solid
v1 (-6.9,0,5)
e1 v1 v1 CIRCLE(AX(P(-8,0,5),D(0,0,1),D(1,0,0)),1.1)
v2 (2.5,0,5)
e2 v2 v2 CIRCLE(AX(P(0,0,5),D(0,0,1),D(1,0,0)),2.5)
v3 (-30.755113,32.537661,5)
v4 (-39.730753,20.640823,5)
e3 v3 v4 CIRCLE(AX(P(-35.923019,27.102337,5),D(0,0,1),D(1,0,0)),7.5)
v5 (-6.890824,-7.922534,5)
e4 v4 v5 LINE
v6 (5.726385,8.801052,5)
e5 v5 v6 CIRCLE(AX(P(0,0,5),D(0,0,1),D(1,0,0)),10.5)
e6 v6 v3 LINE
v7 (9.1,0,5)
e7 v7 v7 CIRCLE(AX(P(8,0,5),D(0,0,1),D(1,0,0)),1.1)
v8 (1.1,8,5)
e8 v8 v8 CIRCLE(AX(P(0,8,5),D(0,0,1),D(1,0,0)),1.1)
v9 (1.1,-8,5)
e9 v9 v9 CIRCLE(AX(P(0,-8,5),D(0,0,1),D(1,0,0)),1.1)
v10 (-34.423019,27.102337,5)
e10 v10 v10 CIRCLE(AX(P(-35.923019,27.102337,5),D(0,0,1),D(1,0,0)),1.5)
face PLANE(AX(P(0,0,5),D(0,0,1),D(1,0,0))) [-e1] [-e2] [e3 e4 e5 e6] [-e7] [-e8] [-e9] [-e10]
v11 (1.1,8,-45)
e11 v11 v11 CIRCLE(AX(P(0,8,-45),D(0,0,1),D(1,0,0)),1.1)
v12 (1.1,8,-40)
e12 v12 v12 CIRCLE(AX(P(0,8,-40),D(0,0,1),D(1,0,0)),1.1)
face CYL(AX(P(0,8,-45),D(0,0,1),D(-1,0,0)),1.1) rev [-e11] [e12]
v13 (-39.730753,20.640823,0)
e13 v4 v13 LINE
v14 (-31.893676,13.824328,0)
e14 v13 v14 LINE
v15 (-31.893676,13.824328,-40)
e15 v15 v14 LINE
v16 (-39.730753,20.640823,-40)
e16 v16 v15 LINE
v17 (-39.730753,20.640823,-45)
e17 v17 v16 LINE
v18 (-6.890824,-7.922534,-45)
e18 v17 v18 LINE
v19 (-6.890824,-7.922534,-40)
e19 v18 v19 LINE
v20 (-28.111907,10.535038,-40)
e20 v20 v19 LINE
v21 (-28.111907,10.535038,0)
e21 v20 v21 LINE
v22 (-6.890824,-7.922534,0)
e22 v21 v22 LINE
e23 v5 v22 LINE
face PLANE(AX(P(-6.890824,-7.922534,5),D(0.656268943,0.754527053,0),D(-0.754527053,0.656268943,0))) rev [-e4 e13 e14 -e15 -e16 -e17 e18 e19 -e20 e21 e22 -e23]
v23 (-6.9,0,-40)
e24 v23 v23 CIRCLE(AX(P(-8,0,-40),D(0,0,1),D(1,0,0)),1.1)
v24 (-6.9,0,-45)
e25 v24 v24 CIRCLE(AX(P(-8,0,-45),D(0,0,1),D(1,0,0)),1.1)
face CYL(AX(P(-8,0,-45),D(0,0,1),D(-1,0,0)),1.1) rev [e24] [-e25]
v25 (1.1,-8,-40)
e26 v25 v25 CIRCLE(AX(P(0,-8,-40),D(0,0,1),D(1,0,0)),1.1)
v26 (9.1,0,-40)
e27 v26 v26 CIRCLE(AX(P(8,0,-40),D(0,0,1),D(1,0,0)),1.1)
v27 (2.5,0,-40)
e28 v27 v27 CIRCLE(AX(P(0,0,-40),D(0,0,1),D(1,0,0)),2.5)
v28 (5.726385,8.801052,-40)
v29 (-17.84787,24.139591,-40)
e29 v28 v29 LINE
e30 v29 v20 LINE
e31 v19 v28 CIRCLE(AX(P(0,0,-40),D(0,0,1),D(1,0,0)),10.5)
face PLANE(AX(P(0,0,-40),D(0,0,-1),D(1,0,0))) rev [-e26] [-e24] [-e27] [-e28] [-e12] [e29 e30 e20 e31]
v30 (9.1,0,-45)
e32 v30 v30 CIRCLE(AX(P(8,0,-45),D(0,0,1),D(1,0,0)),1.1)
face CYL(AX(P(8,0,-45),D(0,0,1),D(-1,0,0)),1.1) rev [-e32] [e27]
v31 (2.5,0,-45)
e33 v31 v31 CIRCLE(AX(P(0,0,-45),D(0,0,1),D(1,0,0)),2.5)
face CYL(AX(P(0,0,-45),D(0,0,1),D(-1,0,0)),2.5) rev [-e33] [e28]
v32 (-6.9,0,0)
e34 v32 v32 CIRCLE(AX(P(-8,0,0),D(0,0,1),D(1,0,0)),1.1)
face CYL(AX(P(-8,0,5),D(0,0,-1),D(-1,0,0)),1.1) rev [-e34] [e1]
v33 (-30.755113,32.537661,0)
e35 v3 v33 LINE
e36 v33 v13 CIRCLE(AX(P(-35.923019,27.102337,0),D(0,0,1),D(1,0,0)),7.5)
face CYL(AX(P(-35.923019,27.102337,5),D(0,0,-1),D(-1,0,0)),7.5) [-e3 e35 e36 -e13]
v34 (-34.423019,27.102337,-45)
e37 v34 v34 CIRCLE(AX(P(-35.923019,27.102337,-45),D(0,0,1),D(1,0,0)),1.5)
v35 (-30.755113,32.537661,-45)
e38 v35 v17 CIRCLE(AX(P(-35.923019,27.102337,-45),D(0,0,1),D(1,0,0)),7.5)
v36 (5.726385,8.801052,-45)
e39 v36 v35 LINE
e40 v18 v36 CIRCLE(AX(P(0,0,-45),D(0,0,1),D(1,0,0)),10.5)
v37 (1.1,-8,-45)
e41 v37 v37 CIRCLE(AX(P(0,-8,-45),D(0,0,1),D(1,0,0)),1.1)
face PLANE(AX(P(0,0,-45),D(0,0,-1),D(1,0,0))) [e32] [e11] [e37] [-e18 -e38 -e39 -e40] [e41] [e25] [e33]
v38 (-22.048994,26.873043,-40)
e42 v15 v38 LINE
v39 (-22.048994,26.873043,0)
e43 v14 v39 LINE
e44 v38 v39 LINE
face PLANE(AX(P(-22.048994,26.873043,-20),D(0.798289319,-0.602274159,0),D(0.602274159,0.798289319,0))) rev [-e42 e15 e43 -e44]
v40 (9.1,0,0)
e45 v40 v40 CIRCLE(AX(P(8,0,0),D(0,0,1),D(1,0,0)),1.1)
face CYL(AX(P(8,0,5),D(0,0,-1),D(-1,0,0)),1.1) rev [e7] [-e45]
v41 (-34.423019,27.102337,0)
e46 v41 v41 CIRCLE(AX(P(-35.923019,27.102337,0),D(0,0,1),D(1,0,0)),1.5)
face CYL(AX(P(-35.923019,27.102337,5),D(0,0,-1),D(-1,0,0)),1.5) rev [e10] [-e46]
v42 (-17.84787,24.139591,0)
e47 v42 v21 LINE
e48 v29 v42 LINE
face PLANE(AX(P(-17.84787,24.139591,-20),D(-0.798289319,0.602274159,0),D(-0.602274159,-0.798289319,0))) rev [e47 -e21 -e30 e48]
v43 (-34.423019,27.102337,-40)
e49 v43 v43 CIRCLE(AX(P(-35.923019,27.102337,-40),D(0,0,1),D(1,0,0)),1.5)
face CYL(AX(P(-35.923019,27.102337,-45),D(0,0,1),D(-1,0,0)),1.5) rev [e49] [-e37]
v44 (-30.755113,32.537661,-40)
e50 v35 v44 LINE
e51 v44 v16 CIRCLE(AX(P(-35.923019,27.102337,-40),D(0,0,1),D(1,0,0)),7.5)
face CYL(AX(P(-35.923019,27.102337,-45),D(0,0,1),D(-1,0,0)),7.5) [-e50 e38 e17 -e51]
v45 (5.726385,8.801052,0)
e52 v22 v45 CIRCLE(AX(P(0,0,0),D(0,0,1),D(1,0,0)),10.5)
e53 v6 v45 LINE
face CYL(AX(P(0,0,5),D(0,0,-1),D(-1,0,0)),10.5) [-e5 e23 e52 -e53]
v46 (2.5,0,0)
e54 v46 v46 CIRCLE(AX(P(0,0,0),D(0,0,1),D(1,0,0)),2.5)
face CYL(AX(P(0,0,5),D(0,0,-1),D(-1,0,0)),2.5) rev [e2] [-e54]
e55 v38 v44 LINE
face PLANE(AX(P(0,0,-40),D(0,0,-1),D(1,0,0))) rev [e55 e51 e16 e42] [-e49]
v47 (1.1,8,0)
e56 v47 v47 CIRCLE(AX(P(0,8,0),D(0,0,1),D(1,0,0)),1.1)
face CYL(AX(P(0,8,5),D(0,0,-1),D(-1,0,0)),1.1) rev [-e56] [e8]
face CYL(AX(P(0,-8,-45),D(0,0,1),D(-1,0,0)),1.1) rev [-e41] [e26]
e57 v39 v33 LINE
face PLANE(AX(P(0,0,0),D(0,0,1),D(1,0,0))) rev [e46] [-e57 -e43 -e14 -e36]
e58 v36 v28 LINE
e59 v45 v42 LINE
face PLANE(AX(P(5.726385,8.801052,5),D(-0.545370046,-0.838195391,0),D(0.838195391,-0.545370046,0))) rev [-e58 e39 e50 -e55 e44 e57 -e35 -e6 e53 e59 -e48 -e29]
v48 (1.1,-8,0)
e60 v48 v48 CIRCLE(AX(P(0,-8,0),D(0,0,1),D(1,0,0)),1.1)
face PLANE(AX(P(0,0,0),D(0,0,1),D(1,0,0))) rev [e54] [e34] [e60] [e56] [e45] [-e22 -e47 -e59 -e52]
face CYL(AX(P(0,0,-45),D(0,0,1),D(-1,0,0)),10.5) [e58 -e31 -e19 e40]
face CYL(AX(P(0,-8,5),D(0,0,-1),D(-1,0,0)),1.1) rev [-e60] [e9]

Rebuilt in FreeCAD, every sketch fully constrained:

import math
import FreeCAD as App
import Part
import Sketcher
from FreeCAD import Vector
Q = App.Units.Quantity


def add_polygon(sketch, points):
    """Adds a closed chain of lines whose ends are joined by coincident constraints."""
    first, n = sketch.GeometryCount, len(points)
    for a, b in zip(points, points[1:] + points[:1]):
        sketch.addGeometry(Part.LineSegment(App.Vector(*a, 0), App.Vector(*b, 0)), False)
    for i in range(n):
        sketch.addConstraint(Sketcher.Constraint("Coincident", first + i, 2, first + (i + 1) % n, 1))

doc = App.newDocument("Part")
params = doc.addObject("Spreadsheet::Sheet", "Params")
for row, (alias, value) in enumerate([
    ("sketch1_diameter", "5 mm"),
    ("sketch1_diameter2", "3 mm"),
    ("sketch1_diameter3", "2.2 mm"),
    ("sketch1_radius", "7.5 mm"),
    ("sketch1_radius2", "10.5 mm"),
    ("pad1_length", "5 mm"),
    ("pad2_length", "20 mm"),
], start=1):
    params.set(f"A{row}", alias)
    params.set(f"B{row}", "=" + value)
    params.setAlias(f"B{row}", alias)

body = doc.addObject("PartDesign::Body", "Body")

sketch1 = body.newObject("Sketcher::SketchObject", "Sketch")
sketch1.AttachmentSupport = (doc.getObject("XY_Plane"), [""])
sketch1.MapMode = "FlatFace"
sketch1.addGeometry(Part.LineSegment(Vector(5.726385, 8.801052, 0), Vector(-30.755113, 32.537661, 0)), False)
sketch1.addGeometry(Part.ArcOfCircle(Part.Circle(Vector(-35.923019, 27.102337, 0), Vector(0, 0, 1), 7.5), math.radians(46.444715), math.radians(239.489392)), False)
sketch1.addGeometry(Part.LineSegment(Vector(-39.730753, 20.640823, 0), Vector(-6.890824, -7.922534, 0)), False)
sketch1.addGeometry(Part.ArcOfCircle(Part.Circle(Vector(0, 0, 0), Vector(0, 0, 1), 10.5), math.radians(-131.015938), math.radians(56.950045)), False)
sketch1.addGeometry(Part.Circle(Vector(-8, 0, 0), Vector(0, 0, 1), 1.1), False)
sketch1.addGeometry(Part.Circle(Vector(0, -8, 0), Vector(0, 0, 1), 1.1), False)
sketch1.addGeometry(Part.Circle(Vector(0, 0, 0), Vector(0, 0, 1), 2.5), False)
sketch1.addGeometry(Part.Circle(Vector(8, 0, 0), Vector(0, 0, 1), 1.1), False)
sketch1.addGeometry(Part.Circle(Vector(0, 8, 0), Vector(0, 0, 1), 1.1), False)
sketch1.addGeometry(Part.Circle(Vector(-35.923019, 27.102337, 0), Vector(0, 0, 1), 1.5), False)
sketch1.addConstraint(Sketcher.Constraint("Coincident", 0, 2, 1, 1))
sketch1.addConstraint(Sketcher.Constraint("Coincident", 1, 2, 2, 1))
sketch1.addConstraint(Sketcher.Constraint("Tangent", 2, 2, 3, 1))
sketch1.addConstraint(Sketcher.Constraint("Tangent", 3, 2, 0, 1))
sketch1.addConstraint(Sketcher.Constraint("Coincident", 3, 3, -1, 1))
sketch1.addConstraint(Sketcher.Constraint("Coincident", 6, 3, -1, 1))
sketch1.addConstraint(Sketcher.Constraint("Coincident", 9, 3, 1, 3))
sketch1.addConstraint(Sketcher.Constraint("Equal", 4, 5))
sketch1.addConstraint(Sketcher.Constraint("Equal", 5, 7))
sketch1.addConstraint(Sketcher.Constraint("Equal", 7, 8))
sketch1.addConstraint(Sketcher.Constraint("Symmetric", 4, 3, 7, 3, -1, 1))
sketch1.addConstraint(Sketcher.Constraint("Symmetric", 5, 3, 8, 3, -1, 1))
sketch1.addConstraint(Sketcher.Constraint("PointOnObject", 4, 3, -1))
sketch1.addConstraint(Sketcher.Constraint("PointOnObject", 5, 3, -2))
sketch1.addConstraint(Sketcher.Constraint("Equal", 0, 2))
sketch1.addConstraint(Sketcher.Constraint("Diameter", 6, Q("5 mm")))
sketch1.addConstraint(Sketcher.Constraint("Diameter", 9, Q("3 mm")))
sketch1.addConstraint(Sketcher.Constraint("Diameter", 4, Q("2.2 mm")))
sketch1.addConstraint(Sketcher.Constraint("Radius", 1, Q("7.5 mm")))
sketch1.addConstraint(Sketcher.Constraint("Radius", 3, Q("10.5 mm")))
sketch1.addConstraint(Sketcher.Constraint("DistanceX", 4, 3, -1, 1, Q("8 mm")))
sketch1.addConstraint(Sketcher.Constraint("DistanceY", 5, 3, -1, 1, Q("8 mm")))
sketch1.addConstraint(Sketcher.Constraint("Distance", 0, Q("43.52386 mm")))
sketch1.addConstraint(Sketcher.Constraint("DistanceX", 1, 3, -1, 1, Q("35.923019 mm")))
sketch1.addConstraint(Sketcher.Constraint("DistanceY", -1, 1, 0, 2, Q("32.537661 mm")))
sketch1.setExpression("Constraints[15]", "Params.sketch1_diameter")
sketch1.setExpression("Constraints[16]", "Params.sketch1_diameter2")
sketch1.setExpression("Constraints[17]", "Params.sketch1_diameter3")
sketch1.setExpression("Constraints[18]", "Params.sketch1_radius")
sketch1.setExpression("Constraints[19]", "Params.sketch1_radius2")
pad1 = body.newObject("PartDesign::Pad", "Pad")
pad1.Profile = sketch1
pad1.setExpression("Length", "Params.pad1_length")

sketch2 = body.newObject("Sketcher::SketchObject", "Sketch001")
sketch2.AttachmentSupport = (doc.getObject("XY_Plane"), [""])
sketch2.MapMode = "FlatFace"
add_polygon(sketch2, [(-17.84787, 24.139591), (-28.111907, 10.535038), (-31.893676, 13.824328), (-22.048994, 26.873043)])
sketch2.addConstraint(Sketcher.Constraint("Parallel", 0, 2))
sketch2.addConstraint(Sketcher.Constraint("Equal", 1, 3))
sketch2.addConstraint(Sketcher.Constraint("DistanceY", -1, 1, 0, 2, Q("10.535038 mm")))
sketch2.addConstraint(Sketcher.Constraint("DistanceX", 3, 2, -1, 1, Q("17.84787 mm")))
sketch2.addConstraint(Sketcher.Constraint("DistanceY", -1, 1, 3, 2, Q("24.139591 mm")))
sketch2.addConstraint(Sketcher.Constraint("DistanceX", 1, 2, 0, 2, Q("3.781769 mm")))
sketch2.addConstraint(Sketcher.Constraint("DistanceY", 0, 2, 1, 2, Q("3.289289 mm")))
sketch2.addConstraint(Sketcher.Constraint("DistanceX", 1, 2, 2, 2, Q("9.844682 mm")))
pad2 = body.newObject("PartDesign::Pad", "Pad001")
pad2.Profile = sketch2
pad2.setExpression("Length", "Params.pad2_length")
pad2.Reversed = True
doc.recompute()

datumplane = body.newObject("PartDesign::Plane", "DatumPlane")
datumplane.AttachmentSupport = (doc.getObject("XY_Plane"), [""])
datumplane.MapMode = "FlatFace"
datumplane.AttachmentOffset = App.Placement(Vector(0, 0, -20), App.Rotation())
mirrored = body.newObject("PartDesign::Mirrored", "Mirrored")
mirrored.Originals = [pad1, pad2]
mirrored.MirrorPlane = (datumplane, [""])
body.Tip = mirrored

doc.recompute()
